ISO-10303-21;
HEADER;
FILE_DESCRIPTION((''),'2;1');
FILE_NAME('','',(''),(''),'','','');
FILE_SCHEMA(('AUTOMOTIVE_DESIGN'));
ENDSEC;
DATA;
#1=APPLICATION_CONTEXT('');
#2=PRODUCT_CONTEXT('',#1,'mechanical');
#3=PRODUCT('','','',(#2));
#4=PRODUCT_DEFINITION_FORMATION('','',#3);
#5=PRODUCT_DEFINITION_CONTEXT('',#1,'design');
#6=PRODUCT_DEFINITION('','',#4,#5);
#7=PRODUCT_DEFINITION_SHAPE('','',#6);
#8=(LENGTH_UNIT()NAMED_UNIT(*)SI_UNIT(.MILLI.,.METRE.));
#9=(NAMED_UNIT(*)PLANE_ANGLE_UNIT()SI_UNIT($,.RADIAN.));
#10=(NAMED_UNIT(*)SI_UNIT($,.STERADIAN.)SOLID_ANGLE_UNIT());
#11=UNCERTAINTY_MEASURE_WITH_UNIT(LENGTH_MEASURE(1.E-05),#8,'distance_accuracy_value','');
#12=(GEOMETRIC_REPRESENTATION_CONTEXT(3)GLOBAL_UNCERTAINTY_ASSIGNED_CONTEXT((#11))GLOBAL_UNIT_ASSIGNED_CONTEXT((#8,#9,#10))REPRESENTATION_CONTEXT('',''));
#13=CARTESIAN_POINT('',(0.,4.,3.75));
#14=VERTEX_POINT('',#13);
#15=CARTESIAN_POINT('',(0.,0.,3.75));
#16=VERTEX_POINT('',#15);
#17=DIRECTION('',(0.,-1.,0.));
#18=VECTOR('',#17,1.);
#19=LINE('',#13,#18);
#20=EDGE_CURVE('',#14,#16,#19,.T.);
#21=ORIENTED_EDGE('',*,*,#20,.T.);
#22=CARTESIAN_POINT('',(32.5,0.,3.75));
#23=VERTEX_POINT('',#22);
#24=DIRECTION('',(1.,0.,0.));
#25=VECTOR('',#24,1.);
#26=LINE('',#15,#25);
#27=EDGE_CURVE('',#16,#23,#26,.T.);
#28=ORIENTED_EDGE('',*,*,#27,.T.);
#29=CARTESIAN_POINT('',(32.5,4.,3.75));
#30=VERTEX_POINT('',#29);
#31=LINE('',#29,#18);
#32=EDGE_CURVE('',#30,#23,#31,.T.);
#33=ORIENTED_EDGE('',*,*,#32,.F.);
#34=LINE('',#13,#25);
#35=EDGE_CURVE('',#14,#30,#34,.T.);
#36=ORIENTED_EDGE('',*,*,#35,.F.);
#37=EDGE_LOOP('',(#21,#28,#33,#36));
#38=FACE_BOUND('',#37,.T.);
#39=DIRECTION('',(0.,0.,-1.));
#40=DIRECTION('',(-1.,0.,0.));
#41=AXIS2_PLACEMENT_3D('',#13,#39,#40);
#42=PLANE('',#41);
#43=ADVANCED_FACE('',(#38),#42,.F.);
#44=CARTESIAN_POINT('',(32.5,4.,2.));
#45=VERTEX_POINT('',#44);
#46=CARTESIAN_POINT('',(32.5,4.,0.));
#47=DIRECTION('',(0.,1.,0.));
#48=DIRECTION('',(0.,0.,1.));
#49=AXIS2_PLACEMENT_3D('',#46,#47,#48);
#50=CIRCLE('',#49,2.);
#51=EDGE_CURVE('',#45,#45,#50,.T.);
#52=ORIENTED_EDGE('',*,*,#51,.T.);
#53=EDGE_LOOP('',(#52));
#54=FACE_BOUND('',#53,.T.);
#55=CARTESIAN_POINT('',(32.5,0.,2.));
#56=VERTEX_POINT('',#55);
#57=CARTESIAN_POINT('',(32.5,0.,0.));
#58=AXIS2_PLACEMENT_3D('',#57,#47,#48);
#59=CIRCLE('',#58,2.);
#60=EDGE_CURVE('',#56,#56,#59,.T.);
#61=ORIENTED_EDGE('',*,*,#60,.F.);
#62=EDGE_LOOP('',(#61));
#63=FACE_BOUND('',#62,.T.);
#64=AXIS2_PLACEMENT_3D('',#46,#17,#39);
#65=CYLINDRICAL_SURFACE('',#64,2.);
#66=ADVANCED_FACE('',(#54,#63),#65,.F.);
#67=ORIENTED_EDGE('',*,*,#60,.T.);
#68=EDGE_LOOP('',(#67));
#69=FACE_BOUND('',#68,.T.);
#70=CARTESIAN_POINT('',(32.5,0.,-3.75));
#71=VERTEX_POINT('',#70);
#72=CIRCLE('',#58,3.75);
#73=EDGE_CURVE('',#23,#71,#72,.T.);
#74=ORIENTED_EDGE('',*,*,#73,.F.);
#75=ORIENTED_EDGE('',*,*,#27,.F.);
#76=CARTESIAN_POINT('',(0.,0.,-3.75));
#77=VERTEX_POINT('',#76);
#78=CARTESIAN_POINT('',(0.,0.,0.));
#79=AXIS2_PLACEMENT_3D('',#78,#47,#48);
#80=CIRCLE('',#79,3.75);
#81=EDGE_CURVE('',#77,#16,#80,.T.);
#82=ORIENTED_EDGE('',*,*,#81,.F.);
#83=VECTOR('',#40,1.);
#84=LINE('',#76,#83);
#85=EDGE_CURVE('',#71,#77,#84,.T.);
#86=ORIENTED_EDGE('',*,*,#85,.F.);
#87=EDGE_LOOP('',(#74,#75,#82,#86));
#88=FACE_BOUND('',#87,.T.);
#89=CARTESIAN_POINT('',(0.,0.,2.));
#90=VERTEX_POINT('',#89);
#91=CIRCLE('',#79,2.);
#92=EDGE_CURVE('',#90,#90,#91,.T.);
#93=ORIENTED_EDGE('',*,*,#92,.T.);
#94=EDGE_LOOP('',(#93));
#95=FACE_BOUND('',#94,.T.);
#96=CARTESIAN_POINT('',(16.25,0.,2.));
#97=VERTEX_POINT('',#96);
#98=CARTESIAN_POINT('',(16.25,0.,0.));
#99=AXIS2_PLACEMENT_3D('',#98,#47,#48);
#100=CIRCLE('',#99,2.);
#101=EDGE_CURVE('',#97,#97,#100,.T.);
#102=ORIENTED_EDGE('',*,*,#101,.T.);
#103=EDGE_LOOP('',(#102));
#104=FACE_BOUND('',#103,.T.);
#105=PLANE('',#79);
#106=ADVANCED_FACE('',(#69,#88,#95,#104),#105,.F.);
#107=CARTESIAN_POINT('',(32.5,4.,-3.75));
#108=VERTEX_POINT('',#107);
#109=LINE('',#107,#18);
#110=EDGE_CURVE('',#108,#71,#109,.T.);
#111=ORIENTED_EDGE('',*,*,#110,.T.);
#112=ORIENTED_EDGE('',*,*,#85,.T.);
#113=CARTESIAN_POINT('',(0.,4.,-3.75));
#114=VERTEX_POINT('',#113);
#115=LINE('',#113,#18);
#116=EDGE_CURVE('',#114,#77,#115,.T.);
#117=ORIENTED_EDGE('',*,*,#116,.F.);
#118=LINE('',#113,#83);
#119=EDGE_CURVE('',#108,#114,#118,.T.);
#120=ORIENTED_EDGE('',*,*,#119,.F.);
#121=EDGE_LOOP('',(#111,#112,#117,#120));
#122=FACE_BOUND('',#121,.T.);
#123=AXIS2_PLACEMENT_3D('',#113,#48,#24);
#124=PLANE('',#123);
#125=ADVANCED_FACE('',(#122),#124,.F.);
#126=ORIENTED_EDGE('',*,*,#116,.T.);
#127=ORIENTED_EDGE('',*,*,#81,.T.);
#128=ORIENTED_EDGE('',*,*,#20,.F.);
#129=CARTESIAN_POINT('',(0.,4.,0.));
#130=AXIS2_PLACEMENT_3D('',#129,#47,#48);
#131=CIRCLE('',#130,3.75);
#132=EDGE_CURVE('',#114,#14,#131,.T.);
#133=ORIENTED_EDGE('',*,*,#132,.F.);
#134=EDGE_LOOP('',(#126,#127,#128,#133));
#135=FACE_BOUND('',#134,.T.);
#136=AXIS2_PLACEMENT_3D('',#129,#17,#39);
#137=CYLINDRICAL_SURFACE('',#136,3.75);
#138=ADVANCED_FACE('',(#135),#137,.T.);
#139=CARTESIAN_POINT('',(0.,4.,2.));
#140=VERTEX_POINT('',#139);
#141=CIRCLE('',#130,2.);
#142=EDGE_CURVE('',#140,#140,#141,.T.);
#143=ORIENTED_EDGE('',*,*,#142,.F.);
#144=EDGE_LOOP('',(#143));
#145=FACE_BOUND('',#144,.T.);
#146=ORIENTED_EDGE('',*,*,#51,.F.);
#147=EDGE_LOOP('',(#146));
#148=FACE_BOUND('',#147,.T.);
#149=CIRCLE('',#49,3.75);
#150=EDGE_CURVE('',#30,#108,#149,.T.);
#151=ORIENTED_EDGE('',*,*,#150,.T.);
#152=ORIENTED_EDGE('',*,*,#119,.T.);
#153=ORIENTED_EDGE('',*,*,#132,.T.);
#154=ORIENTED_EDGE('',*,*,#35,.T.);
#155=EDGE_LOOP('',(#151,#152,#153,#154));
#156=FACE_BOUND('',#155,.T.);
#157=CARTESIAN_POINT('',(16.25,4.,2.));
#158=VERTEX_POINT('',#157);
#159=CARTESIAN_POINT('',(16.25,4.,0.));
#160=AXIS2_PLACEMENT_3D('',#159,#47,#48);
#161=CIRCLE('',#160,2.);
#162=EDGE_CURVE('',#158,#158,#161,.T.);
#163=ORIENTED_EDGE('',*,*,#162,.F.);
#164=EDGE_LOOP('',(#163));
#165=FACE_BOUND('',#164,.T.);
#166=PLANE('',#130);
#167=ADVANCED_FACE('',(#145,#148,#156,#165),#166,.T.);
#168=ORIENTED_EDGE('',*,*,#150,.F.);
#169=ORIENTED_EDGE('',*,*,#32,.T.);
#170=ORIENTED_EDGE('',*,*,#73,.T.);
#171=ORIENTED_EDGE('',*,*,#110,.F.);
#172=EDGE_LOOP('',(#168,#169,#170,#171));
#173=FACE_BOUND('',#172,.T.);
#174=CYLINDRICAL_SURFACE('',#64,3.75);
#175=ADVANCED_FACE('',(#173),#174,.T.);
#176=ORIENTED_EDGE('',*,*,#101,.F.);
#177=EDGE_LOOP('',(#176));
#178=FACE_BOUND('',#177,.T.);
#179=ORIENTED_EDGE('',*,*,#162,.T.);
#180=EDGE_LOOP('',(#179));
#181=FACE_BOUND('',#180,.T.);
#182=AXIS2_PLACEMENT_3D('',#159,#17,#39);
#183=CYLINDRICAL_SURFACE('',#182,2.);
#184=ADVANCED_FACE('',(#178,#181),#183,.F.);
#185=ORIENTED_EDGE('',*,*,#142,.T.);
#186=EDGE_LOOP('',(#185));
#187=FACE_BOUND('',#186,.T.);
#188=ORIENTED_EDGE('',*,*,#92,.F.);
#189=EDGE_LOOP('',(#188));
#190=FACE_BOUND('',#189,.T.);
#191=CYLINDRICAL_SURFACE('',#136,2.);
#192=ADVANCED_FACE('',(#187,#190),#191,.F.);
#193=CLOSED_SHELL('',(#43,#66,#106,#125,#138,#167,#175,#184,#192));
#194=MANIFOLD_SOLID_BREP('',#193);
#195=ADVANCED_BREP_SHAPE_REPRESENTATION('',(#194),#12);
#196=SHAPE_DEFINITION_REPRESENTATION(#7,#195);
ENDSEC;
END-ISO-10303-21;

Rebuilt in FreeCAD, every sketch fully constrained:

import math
import FreeCAD as App
import Part
import Sketcher
from FreeCAD import Vector
Q = App.Units.Quantity

doc = App.newDocument("Part")
body = doc.addObject("PartDesign::Body", "Body")

# Sketch on XZ plane
sketch1 = body.newObject("Sketcher::SketchObject", "Sketch")
sketch1.AttachmentSupport = (doc.getObject("XZ_Plane"), [""])
sketch1.MapMode = "FlatFace"
sketch1.addGeometry([
    Part.LineSegment(Vector(32.5, -3.75, 0), Vector(0, -3.75, 0)),  # 0
    Part.ArcOfCircle(Part.Circle(Vector(0, 0, 0), Vector(0, 0, 1), 3.75), math.radians(90), math.radians(270)),  # 1
    Part.LineSegment(Vector(0, 3.75, 0), Vector(32.5, 3.75, 0)),  # 2
    Part.ArcOfCircle(Part.Circle(Vector(32.5, 0, 0), Vector(0, 0, 1), 3.75), math.radians(-90), math.radians(90)),  # 3
    Part.Circle(Vector(32.5, 0, 0), Vector(0, 0, 1), 2),  # 4
    Part.Circle(Vector(16.25, 0, 0), Vector(0, 0, 1), 2),  # 5
    Part.Circle(Vector(0, 0, 0), Vector(0, 0, 1), 2),  # 6
], False)
sketch1.addConstraint([
    Sketcher.Constraint("Tangent", 0, 2, 1, 2),
    Sketcher.Constraint("Tangent", 1, 1, 2, 1),
    Sketcher.Constraint("Tangent", 2, 2, 3, 2),
    Sketcher.Constraint("Tangent", 3, 1, 0, 1),
    Sketcher.Constraint("Horizontal", 0),
    Sketcher.Constraint("Horizontal", 2),
    Sketcher.Constraint("Coincident", 1, 3, -1, 1),
    Sketcher.Constraint("Coincident", 6, 3, -1, 1),
    Sketcher.Constraint("Coincident", 4, 3, 3, 3),
    Sketcher.Constraint("Equal", 4, 5),
    Sketcher.Constraint("Equal", 5, 6),
    Sketcher.Constraint("PointOnObject", 5, 3, -1),
    Sketcher.Constraint("Diameter", 4, Q("4 mm")),
    Sketcher.Constraint("Radius", 1, Q("3.75 mm")),
    Sketcher.Constraint("DistanceX", 0, 2, 0, 1, Q("32.5 mm")),
    Sketcher.Constraint("DistanceX", -1, 1, 5, 3, Q("16.25 mm")),
])
pad1 = body.newObject("PartDesign::Pad", "Pad")
pad1.Profile = sketch1
pad1.Length = 4
pad1.Reversed = True

doc.recompute()
